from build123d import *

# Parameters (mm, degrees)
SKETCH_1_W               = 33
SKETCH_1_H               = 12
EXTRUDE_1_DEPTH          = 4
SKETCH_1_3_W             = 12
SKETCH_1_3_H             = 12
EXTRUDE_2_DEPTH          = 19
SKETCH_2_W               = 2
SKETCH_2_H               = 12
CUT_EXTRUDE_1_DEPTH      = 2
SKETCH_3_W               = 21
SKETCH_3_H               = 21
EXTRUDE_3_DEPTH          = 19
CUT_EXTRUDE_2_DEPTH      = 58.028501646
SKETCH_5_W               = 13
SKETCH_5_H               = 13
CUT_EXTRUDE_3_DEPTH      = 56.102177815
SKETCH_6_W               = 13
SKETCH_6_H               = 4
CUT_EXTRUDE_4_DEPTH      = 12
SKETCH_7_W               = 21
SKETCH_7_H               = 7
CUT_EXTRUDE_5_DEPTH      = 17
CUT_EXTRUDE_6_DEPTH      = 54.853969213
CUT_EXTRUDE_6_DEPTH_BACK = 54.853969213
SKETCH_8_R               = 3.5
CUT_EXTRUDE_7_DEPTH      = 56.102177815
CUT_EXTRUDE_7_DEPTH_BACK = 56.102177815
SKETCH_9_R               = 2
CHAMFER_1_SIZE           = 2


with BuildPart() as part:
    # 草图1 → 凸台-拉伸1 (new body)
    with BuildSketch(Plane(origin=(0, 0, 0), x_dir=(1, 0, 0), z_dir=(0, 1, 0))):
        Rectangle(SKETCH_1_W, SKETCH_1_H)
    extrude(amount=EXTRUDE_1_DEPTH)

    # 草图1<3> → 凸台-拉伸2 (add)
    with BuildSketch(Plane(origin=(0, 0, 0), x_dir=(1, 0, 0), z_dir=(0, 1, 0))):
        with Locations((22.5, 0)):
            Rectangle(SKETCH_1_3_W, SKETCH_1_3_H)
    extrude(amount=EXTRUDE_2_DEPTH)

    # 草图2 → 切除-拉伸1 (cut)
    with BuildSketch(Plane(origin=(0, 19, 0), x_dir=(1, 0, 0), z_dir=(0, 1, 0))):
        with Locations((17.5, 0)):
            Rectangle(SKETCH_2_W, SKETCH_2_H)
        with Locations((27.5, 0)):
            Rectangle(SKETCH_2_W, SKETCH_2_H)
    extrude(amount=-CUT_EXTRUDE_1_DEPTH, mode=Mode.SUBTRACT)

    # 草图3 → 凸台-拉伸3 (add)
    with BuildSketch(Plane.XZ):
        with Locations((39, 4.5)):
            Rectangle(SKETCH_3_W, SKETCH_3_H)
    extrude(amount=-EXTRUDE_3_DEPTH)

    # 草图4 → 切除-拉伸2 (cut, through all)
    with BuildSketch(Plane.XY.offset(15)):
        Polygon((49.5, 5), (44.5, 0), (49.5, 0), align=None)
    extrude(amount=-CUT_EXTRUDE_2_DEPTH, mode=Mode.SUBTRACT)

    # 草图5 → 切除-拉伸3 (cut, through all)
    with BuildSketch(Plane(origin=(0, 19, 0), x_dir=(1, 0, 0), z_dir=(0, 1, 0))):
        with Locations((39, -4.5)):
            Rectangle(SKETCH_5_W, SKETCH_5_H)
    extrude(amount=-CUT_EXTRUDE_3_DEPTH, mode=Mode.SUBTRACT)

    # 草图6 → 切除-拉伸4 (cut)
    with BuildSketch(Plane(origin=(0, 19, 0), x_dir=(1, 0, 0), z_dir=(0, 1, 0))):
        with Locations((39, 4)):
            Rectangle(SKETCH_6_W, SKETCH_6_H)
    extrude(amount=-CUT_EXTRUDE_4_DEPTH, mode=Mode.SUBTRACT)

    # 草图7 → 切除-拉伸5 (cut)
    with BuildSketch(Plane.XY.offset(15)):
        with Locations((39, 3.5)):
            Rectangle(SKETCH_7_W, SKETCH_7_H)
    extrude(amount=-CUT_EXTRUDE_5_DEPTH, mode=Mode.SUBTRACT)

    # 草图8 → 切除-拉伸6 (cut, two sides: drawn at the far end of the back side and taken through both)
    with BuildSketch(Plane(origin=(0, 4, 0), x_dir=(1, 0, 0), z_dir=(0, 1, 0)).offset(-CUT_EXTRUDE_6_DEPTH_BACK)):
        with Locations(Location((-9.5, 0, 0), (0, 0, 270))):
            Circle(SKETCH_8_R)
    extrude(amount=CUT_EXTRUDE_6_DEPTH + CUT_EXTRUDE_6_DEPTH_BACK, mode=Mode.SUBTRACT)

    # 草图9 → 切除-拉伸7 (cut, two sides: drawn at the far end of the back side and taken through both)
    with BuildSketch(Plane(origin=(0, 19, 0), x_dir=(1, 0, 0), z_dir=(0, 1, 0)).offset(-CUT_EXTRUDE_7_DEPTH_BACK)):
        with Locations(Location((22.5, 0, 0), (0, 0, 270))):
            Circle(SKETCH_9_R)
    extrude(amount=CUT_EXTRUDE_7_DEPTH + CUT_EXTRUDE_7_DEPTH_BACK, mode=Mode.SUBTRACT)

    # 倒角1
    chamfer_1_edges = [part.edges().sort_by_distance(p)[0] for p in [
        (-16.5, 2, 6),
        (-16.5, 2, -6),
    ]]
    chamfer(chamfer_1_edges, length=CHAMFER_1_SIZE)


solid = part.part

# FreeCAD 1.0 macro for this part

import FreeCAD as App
import Part
import Sketcher

V = App.Vector


def edges_at(feature, points):
    """Names of the edges that pass closest to the given points."""
    edges = feature.Shape.Edges
    near = lambda p: min(range(len(edges)), key=lambda i: edges[i].distToShape(Part.Vertex(*p))[0])
    return sorted({f"Edge{near(p) + 1}" for p in points})


def add_polygon(sketch, points):
    """Adds a closed chain of lines whose ends are joined by coincident constraints."""
    first, n = sketch.GeometryCount, len(points)
    for a, b in zip(points, points[1:] + points[:1]):
        sketch.addGeometry(Part.LineSegment(App.Vector(*a, 0), App.Vector(*b, 0)), False)
    for i in range(n):
        sketch.addConstraint(Sketcher.Constraint("Coincident", first + i, 2, first + (i + 1) % n, 1))

doc = App.newDocument("Part")
params = doc.addObject("Spreadsheet::Sheet", "Params")
for row, (alias, value) in enumerate([
    ("sketch1_width", "33 mm"),
    ("sketch1_height", "12 mm"),
    ("pad1_length", "4 mm"),
    ("sketch2_width", "12 mm"),
    ("pad2_length", "19 mm"),
    ("sketch3_width", "2 mm"),
    ("sketch3_height", "12 mm"),
    ("pocket1_length", "2 mm"),
    ("sketch4_width", "21 mm"),
    ("pad3_length", "19 mm"),
    ("sketch5_width", "5 mm"),
    ("sketch6_width", "13 mm"),
    ("sketch7_width", "13 mm"),
    ("sketch7_height", "4 mm"),
    ("pocket4_length", "12 mm"),
    ("sketch8_width", "21 mm"),
    ("sketch8_height", "7 mm"),
    ("pocket5_length", "17 mm"),
    ("sketch9_diameter", "7 mm"),
    ("sketch10_diameter", "4 mm"),
    ("chamfer_size", "2 mm"),
], start=1):
    params.set(f"A{row}", alias)
    params.set(f"B{row}", "=" + value)
    params.setAlias(f"B{row}", alias)

body = doc.addObject("PartDesign::Body", "Body")

# Sketch on XZ plane
sketch1 = body.newObject("Sketcher::SketchObject", "Sketch")
sketch1.AttachmentSupport = (doc.getObject("XZ_Plane"), [""])
sketch1.MapMode = "FlatFace"
add_polygon(sketch1, [(-16, -6), (-16, 6), (16, 6), (16, -6)])  # lines 0-3
sketch1.addConstraint([
    Sketcher.Constraint("Vertical", 0),
    Sketcher.Constraint("Horizontal", 1),
    Sketcher.Constraint("Vertical", 2),
    Sketcher.Constraint("Horizontal", 3),
    Sketcher.Constraint("Symmetric", 0, 2, 2, 2, -1, 1),
    Sketcher.Constraint("DistanceX", 1, 1, 1, 2, 33.0),
    Sketcher.Constraint("DistanceY", 0, 1, 0, 2, 12.0),
])
sketch1.setExpression("Constraints[9]", "Params.sketch1_width")
sketch1.setExpression("Constraints[10]", "Params.sketch1_height")
pad1 = body.newObject("PartDesign::Pad", "Pad")
pad1.Profile = sketch1
pad1.setExpression("Length", "Params.pad1_length")
pad1.Reversed = True

# Sketch on XZ plane
sketch2 = body.newObject("Sketcher::SketchObject", "Sketch001")
sketch2.AttachmentSupport = (doc.getObject("XZ_Plane"), [""])
sketch2.MapMode = "FlatFace"
add_polygon(sketch2, [(16, -6), (16, 6), (28, 6), (28, -6)])  # lines 0-3
sketch2.addConstraint([
    Sketcher.Constraint("Vertical", 0),
    Sketcher.Constraint("Horizontal", 1),
    Sketcher.Constraint("Vertical", 2),
    Sketcher.Constraint("Horizontal", 3),
    Sketcher.Constraint("Equal", 3, 0),
    Sketcher.Constraint("DistanceX", 1, 1, 1, 2, 12.0),
    Sketcher.Constraint("DistanceY", -1, 1, 0, 2, 6.0),
    Sketcher.Constraint("DistanceX", -1, 1, 0, 2, 16.5),
])
sketch2.setExpression("Constraints[9]", "Params.sketch2_width")
pad2 = body.newObject("PartDesign::Pad", "Pad001")
pad2.Profile = sketch2
pad2.setExpression("Length", "Params.pad2_length")
pad2.Reversed = True

# Sketch on XZ plane
sketch3 = body.newObject("Sketcher::SketchObject", "Sketch002")
sketch3.AttachmentSupport = (doc.getObject("XZ_Plane"), [""])
sketch3.MapMode = "FlatFace"
sketch3.AttachmentOffset = App.Placement(V(0, 0, -19), App.Rotation())
add_polygon(sketch3, [(16.5, -6), (16.5, 6), (18.5, 6), (18.5, -6)])  # lines 0-3
add_polygon(sketch3, [(26.5, -6), (26.5, 6), (28.5, 6), (28.5, -6)])  # lines 4-7
sketch3.addConstraint([
    Sketcher.Constraint("Vertical", 0),
    Sketcher.Constraint("Horizontal", 1),
    Sketcher.Constraint("Vertical", 2),
    Sketcher.Constraint("Horizontal", 3),
    Sketcher.Constraint("Vertical", 4),
    Sketcher.Constraint("Horizontal", 5),
    Sketcher.Constraint("Vertical", 6),
    Sketcher.Constraint("Horizontal", 7),
    Sketcher.Constraint("Horizontal", 1, 2, 4, 2),
    Sketcher.Constraint("Horizontal", 3, 2, 6, 2),
    Sketcher.Constraint("Equal", 3, 5),
    Sketcher.Constraint("DistanceX", 1, 1, 1, 2, 2.0),
    Sketcher.Constraint("DistanceY", 0, 1, 0, 2, 12.0),
    Sketcher.Constraint("DistanceY", -1, 1, 0, 2, 6.0),
    Sketcher.Constraint("DistanceX", 1, 2, 4, 2, 8.0),
    Sketcher.Constraint("DistanceX", -1, 1, 0, 2, 16.5),
])
sketch3.setExpression("Constraints[19]", "Params.sketch3_width")
sketch3.setExpression("Constraints[20]", "Params.sketch3_height")
pocket1 = body.newObject("PartDesign::Pocket", "Pocket")
pocket1.Profile = sketch3
pocket1.setExpression("Length", "Params.pocket1_length")
pocket1.Reversed = True

# Sketch on XZ plane
sketch4 = body.newObject("Sketcher::SketchObject", "Sketch003")
sketch4.AttachmentSupport = (doc.getObject("XZ_Plane"), [""])
sketch4.MapMode = "FlatFace"
add_polygon(sketch4, [(28, 15), (28, -6), (50, -6), (50, 15)])  # lines 0-3
sketch4.addConstraint([
    Sketcher.Constraint("Vertical", 0),
    Sketcher.Constraint("Horizontal", 1),
    Sketcher.Constraint("Vertical", 2),
    Sketcher.Constraint("Horizontal", 3),
    Sketcher.Constraint("Equal", 3, 0),
    Sketcher.Constraint("DistanceX", 1, 1, 1, 2, 21.0),
    Sketcher.Constraint("DistanceY", 0, 2, -1, 1, 6.0),
    Sketcher.Constraint("DistanceX", -1, 1, 0, 2, 28.5),
])
sketch4.setExpression("Constraints[9]", "Params.sketch4_width")
pad3 = body.newObject("PartDesign::Pad", "Pad002")
pad3.Profile = sketch4
pad3.setExpression("Length", "Params.pad3_length")
pad3.Reversed = True

# Sketch on XY plane
sketch5 = body.newObject("Sketcher::SketchObject", "Sketch004")
sketch5.AttachmentSupport = (doc.getObject("XY_Plane"), [""])
sketch5.MapMode = "FlatFace"
sketch5.AttachmentOffset = App.Placement(V(0, 0, 15), App.Rotation())
add_polygon(sketch5, [(50, 5), (44, 0), (50, 0)])  # lines 0-2
sketch5.addConstraint([
    Sketcher.Constraint("Horizontal", 1),
    Sketcher.Constraint("Vertical", 2),
    Sketcher.Constraint("PointOnObject", 0, 2, -1),
    Sketcher.Constraint("Equal", 1, 2),
    Sketcher.Constraint("DistanceX", 1, 1, 1, 2, 5.0),
    Sketcher.Constraint("DistanceX", -1, 1, 0, 2, 44.5),
])
sketch5.setExpression("Constraints[7]", "Params.sketch5_width")
pocket2 = body.newObject("PartDesign::Pocket", "Pocket001")
pocket2.Profile = sketch5
pocket2.Type = "ThroughAll"

# Sketch on XZ plane
sketch6 = body.newObject("Sketcher::SketchObject", "Sketch005")
sketch6.AttachmentSupport = (doc.getObject("XZ_Plane"), [""])
sketch6.MapMode = "FlatFace"
sketch6.AttachmentOffset = App.Placement(V(0, 0, -19), App.Rotation())
add_polygon(sketch6, [(32, -2), (32, 11), (46, 11), (46, -2)])  # lines 0-3
sketch6.addConstraint([
    Sketcher.Constraint("Vertical", 0),
    Sketcher.Constraint("Horizontal", 1),
    Sketcher.Constraint("Vertical", 2),
    Sketcher.Constraint("Horizontal", 3),
    Sketcher.Constraint("Equal", 3, 0),
    Sketcher.Constraint("DistanceX", 1, 1, 1, 2, 13.0),
    Sketcher.Constraint("DistanceY", -1, 1, 0, 2, 11.0),
    Sketcher.Constraint("DistanceX", -1, 1, 0, 2, 32.5),
])
sketch6.setExpression("Constraints[9]", "Params.sketch6_width")
pocket3 = body.newObject("PartDesign::Pocket", "Pocket002")
pocket3.Profile = sketch6
pocket3.Type = "ThroughAll"
pocket3.Reversed = True

# Sketch on XZ plane
sketch7 = body.newObject("Sketcher::SketchObject", "Sketch006")
sketch7.AttachmentSupport = (doc.getObject("XZ_Plane"), [""])
sketch7.MapMode = "FlatFace"
sketch7.AttachmentOffset = App.Placement(V(0, 0, -19), App.Rotation())
add_polygon(sketch7, [(32.5, -6), (32.5, -2), (45.5, -2), (45.5, -6)])  # lines 0-3
sketch7.addConstraint([
    Sketcher.Constraint("Vertical", 0),
    Sketcher.Constraint("Horizontal", 1),
    Sketcher.Constraint("Vertical", 2),
    Sketcher.Constraint("Horizontal", 3),
    Sketcher.Constraint("DistanceX", 1, 1, 1, 2, 13.0),
    Sketcher.Constraint("DistanceY", 0, 1, 0, 2, 4.0),
    Sketcher.Constraint("DistanceY", 0, 2, -1, 1, 2.0),
    Sketcher.Constraint("DistanceX", -1, 1, 0, 2, 32.5),
])
sketch7.setExpression("Constraints[8]", "Params.sketch7_width")
sketch7.setExpression("Constraints[9]", "Params.sketch7_height")
pocket4 = body.newObject("PartDesign::Pocket", "Pocket003")
pocket4.Profile = sketch7
pocket4.setExpression("Length", "Params.pocket4_length")
pocket4.Reversed = True

# Sketch on XY plane
sketch8 = body.newObject("Sketcher::SketchObject", "Sketch007")
sketch8.AttachmentSupport = (doc.getObject("XY_Plane"), [""])
sketch8.MapMode = "FlatFace"
sketch8.AttachmentOffset = App.Placement(V(0, 0, 15), App.Rotation())
add_polygon(sketch8, [(28, 7), (28, 0), (50, 0), (50, 7)])  # lines 0-3
sketch8.addConstraint([
    Sketcher.Constraint("Vertical", 0),
    Sketcher.Constraint("Horizontal", 1),
    Sketcher.Constraint("Vertical", 2),
    Sketcher.Constraint("Horizontal", 3),
    Sketcher.Constraint("PointOnObject", 0, 2, -1),
    Sketcher.Constraint("DistanceX", 1, 1, 1, 2, 21.0),
    Sketcher.Constraint("DistanceY", 0, 2, 0, 1, 7.0),
    Sketcher.Constraint("DistanceX", -1, 1, 0, 2, 28.5),
])
sketch8.setExpression("Constraints[9]", "Params.sketch8_width")
sketch8.setExpression("Constraints[10]", "Params.sketch8_height")
pocket5 = body.newObject("PartDesign::Pocket", "Pocket004")
pocket5.Profile = sketch8
pocket5.setExpression("Length", "Params.pocket5_length")

# Sketch on XZ plane
sketch9 = body.newObject("Sketcher::SketchObject", "Sketch008")
sketch9.AttachmentSupport = (doc.getObject("XZ_Plane"), [""])
sketch9.MapMode = "FlatFace"
sketch9.AttachmentOffset = App.Placement(V(0, 0, -4), App.Rotation())
sketch9.addGeometry(Part.Circle(V(-9.5, 0, 0), V(0, 0, 1), 3.5), False)
sketch9.addConstraint([
    Sketcher.Constraint("PointOnObject", 0, 3, -1),
    Sketcher.Constraint("Diameter", 0, 7.0),
    Sketcher.Constraint("DistanceX", 0, 3, -1, 1, 9.5),
])
sketch9.setExpression("Constraints[1]", "Params.sketch9_diameter")
pocket6 = body.newObject("PartDesign::Pocket", "Pocket005")
pocket6.Profile = sketch9
pocket6.Type = "ThroughAll"
pocket6.Midplane = True

# Sketch on XZ plane
sketch10 = body.newObject("Sketcher::SketchObject", "Sketch009")
sketch10.AttachmentSupport = (doc.getObject("XZ_Plane"), [""])
sketch10.MapMode = "FlatFace"
sketch10.AttachmentOffset = App.Placement(V(0, 0, -19), App.Rotation())
sketch10.addGeometry(Part.Circle(V(22.5, 0, 0), V(0, 0, 1), 2), False)
sketch10.addConstraint([
    Sketcher.Constraint("PointOnObject", 0, 3, -1),
    Sketcher.Constraint("Diameter", 0, 4.0),
    Sketcher.Constraint("DistanceX", -1, 1, 0, 3, 22.5),
])
sketch10.setExpression("Constraints[1]", "Params.sketch10_diameter")
pocket7 = body.newObject("PartDesign::Pocket", "Pocket006")
pocket7.Profile = sketch10
pocket7.Type = "ThroughAll"
pocket7.Midplane = True
doc.recompute()

chamfer = body.newObject("PartDesign::Chamfer", "Chamfer")
chamfer.Base = (pocket7, edges_at(pocket7, [(-16.5, 2, 6), (-16.5, 2, -6)]))
chamfer.setExpression("Size", "Params.chamfer_size")

doc.recompute()
